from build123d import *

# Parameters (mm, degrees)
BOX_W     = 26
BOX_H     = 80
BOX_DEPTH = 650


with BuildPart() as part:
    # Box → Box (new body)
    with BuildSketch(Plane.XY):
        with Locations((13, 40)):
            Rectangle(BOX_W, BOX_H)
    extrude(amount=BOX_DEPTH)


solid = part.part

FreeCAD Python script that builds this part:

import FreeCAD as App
import Part
import Sketcher

V = App.Vector

doc = App.newDocument("Part")
body = doc.addObject("PartDesign::Body", "Body")

sketch1 = body.newObject("Sketcher::SketchObject", "Sketch")
sketch1.AttachmentSupport = (doc.getObject("XY_Plane"), [""])
sketch1.MapMode = "FlatFace"
sketch1.addGeometry(Part.LineSegment(V(0, 80, 0), V(0, 0, 0)), False)
sketch1.addGeometry(Part.LineSegment(V(0, 0, 0), V(26, 0, 0)), False)
sketch1.addGeometry(Part.LineSegment(V(26, 0, 0), V(26, 80, 0)), False)
sketch1.addGeometry(Part.LineSegment(V(26, 80, 0), V(0, 80, 0)), False)
sketch1.addConstraint(Sketcher.Constraint("Coincident", 0, 2, 1, 1))
sketch1.addConstraint(Sketcher.Constraint("Coincident", 1, 2, 2, 1))
sketch1.addConstraint(Sketcher.Constraint("Coincident", 2, 2, 3, 1))
sketch1.addConstraint(Sketcher.Constraint("Coincident", 3, 2, 0, 1))
sketch1.addConstraint(Sketcher.Constraint("Vertical", 0))
sketch1.addConstraint(Sketcher.Constraint("Horizontal", 1))
sketch1.addConstraint(Sketcher.Constraint("Vertical", 2))
sketch1.addConstraint(Sketcher.Constraint("Horizontal", 3))
sketch1.addConstraint(Sketcher.Constraint("Coincident", 0, 2, -1, 1))
sketch1.addConstraint(Sketcher.Constraint("DistanceX", 1, 1, 1, 2, 26.0))
sketch1.addConstraint(Sketcher.Constraint("DistanceY", 0, 2, 0, 1, 80.0))
pad1 = body.newObject("PartDesign::Pad", "Pad")
pad1.Profile = sketch1
pad1.Length = 650

doc.recompute()
